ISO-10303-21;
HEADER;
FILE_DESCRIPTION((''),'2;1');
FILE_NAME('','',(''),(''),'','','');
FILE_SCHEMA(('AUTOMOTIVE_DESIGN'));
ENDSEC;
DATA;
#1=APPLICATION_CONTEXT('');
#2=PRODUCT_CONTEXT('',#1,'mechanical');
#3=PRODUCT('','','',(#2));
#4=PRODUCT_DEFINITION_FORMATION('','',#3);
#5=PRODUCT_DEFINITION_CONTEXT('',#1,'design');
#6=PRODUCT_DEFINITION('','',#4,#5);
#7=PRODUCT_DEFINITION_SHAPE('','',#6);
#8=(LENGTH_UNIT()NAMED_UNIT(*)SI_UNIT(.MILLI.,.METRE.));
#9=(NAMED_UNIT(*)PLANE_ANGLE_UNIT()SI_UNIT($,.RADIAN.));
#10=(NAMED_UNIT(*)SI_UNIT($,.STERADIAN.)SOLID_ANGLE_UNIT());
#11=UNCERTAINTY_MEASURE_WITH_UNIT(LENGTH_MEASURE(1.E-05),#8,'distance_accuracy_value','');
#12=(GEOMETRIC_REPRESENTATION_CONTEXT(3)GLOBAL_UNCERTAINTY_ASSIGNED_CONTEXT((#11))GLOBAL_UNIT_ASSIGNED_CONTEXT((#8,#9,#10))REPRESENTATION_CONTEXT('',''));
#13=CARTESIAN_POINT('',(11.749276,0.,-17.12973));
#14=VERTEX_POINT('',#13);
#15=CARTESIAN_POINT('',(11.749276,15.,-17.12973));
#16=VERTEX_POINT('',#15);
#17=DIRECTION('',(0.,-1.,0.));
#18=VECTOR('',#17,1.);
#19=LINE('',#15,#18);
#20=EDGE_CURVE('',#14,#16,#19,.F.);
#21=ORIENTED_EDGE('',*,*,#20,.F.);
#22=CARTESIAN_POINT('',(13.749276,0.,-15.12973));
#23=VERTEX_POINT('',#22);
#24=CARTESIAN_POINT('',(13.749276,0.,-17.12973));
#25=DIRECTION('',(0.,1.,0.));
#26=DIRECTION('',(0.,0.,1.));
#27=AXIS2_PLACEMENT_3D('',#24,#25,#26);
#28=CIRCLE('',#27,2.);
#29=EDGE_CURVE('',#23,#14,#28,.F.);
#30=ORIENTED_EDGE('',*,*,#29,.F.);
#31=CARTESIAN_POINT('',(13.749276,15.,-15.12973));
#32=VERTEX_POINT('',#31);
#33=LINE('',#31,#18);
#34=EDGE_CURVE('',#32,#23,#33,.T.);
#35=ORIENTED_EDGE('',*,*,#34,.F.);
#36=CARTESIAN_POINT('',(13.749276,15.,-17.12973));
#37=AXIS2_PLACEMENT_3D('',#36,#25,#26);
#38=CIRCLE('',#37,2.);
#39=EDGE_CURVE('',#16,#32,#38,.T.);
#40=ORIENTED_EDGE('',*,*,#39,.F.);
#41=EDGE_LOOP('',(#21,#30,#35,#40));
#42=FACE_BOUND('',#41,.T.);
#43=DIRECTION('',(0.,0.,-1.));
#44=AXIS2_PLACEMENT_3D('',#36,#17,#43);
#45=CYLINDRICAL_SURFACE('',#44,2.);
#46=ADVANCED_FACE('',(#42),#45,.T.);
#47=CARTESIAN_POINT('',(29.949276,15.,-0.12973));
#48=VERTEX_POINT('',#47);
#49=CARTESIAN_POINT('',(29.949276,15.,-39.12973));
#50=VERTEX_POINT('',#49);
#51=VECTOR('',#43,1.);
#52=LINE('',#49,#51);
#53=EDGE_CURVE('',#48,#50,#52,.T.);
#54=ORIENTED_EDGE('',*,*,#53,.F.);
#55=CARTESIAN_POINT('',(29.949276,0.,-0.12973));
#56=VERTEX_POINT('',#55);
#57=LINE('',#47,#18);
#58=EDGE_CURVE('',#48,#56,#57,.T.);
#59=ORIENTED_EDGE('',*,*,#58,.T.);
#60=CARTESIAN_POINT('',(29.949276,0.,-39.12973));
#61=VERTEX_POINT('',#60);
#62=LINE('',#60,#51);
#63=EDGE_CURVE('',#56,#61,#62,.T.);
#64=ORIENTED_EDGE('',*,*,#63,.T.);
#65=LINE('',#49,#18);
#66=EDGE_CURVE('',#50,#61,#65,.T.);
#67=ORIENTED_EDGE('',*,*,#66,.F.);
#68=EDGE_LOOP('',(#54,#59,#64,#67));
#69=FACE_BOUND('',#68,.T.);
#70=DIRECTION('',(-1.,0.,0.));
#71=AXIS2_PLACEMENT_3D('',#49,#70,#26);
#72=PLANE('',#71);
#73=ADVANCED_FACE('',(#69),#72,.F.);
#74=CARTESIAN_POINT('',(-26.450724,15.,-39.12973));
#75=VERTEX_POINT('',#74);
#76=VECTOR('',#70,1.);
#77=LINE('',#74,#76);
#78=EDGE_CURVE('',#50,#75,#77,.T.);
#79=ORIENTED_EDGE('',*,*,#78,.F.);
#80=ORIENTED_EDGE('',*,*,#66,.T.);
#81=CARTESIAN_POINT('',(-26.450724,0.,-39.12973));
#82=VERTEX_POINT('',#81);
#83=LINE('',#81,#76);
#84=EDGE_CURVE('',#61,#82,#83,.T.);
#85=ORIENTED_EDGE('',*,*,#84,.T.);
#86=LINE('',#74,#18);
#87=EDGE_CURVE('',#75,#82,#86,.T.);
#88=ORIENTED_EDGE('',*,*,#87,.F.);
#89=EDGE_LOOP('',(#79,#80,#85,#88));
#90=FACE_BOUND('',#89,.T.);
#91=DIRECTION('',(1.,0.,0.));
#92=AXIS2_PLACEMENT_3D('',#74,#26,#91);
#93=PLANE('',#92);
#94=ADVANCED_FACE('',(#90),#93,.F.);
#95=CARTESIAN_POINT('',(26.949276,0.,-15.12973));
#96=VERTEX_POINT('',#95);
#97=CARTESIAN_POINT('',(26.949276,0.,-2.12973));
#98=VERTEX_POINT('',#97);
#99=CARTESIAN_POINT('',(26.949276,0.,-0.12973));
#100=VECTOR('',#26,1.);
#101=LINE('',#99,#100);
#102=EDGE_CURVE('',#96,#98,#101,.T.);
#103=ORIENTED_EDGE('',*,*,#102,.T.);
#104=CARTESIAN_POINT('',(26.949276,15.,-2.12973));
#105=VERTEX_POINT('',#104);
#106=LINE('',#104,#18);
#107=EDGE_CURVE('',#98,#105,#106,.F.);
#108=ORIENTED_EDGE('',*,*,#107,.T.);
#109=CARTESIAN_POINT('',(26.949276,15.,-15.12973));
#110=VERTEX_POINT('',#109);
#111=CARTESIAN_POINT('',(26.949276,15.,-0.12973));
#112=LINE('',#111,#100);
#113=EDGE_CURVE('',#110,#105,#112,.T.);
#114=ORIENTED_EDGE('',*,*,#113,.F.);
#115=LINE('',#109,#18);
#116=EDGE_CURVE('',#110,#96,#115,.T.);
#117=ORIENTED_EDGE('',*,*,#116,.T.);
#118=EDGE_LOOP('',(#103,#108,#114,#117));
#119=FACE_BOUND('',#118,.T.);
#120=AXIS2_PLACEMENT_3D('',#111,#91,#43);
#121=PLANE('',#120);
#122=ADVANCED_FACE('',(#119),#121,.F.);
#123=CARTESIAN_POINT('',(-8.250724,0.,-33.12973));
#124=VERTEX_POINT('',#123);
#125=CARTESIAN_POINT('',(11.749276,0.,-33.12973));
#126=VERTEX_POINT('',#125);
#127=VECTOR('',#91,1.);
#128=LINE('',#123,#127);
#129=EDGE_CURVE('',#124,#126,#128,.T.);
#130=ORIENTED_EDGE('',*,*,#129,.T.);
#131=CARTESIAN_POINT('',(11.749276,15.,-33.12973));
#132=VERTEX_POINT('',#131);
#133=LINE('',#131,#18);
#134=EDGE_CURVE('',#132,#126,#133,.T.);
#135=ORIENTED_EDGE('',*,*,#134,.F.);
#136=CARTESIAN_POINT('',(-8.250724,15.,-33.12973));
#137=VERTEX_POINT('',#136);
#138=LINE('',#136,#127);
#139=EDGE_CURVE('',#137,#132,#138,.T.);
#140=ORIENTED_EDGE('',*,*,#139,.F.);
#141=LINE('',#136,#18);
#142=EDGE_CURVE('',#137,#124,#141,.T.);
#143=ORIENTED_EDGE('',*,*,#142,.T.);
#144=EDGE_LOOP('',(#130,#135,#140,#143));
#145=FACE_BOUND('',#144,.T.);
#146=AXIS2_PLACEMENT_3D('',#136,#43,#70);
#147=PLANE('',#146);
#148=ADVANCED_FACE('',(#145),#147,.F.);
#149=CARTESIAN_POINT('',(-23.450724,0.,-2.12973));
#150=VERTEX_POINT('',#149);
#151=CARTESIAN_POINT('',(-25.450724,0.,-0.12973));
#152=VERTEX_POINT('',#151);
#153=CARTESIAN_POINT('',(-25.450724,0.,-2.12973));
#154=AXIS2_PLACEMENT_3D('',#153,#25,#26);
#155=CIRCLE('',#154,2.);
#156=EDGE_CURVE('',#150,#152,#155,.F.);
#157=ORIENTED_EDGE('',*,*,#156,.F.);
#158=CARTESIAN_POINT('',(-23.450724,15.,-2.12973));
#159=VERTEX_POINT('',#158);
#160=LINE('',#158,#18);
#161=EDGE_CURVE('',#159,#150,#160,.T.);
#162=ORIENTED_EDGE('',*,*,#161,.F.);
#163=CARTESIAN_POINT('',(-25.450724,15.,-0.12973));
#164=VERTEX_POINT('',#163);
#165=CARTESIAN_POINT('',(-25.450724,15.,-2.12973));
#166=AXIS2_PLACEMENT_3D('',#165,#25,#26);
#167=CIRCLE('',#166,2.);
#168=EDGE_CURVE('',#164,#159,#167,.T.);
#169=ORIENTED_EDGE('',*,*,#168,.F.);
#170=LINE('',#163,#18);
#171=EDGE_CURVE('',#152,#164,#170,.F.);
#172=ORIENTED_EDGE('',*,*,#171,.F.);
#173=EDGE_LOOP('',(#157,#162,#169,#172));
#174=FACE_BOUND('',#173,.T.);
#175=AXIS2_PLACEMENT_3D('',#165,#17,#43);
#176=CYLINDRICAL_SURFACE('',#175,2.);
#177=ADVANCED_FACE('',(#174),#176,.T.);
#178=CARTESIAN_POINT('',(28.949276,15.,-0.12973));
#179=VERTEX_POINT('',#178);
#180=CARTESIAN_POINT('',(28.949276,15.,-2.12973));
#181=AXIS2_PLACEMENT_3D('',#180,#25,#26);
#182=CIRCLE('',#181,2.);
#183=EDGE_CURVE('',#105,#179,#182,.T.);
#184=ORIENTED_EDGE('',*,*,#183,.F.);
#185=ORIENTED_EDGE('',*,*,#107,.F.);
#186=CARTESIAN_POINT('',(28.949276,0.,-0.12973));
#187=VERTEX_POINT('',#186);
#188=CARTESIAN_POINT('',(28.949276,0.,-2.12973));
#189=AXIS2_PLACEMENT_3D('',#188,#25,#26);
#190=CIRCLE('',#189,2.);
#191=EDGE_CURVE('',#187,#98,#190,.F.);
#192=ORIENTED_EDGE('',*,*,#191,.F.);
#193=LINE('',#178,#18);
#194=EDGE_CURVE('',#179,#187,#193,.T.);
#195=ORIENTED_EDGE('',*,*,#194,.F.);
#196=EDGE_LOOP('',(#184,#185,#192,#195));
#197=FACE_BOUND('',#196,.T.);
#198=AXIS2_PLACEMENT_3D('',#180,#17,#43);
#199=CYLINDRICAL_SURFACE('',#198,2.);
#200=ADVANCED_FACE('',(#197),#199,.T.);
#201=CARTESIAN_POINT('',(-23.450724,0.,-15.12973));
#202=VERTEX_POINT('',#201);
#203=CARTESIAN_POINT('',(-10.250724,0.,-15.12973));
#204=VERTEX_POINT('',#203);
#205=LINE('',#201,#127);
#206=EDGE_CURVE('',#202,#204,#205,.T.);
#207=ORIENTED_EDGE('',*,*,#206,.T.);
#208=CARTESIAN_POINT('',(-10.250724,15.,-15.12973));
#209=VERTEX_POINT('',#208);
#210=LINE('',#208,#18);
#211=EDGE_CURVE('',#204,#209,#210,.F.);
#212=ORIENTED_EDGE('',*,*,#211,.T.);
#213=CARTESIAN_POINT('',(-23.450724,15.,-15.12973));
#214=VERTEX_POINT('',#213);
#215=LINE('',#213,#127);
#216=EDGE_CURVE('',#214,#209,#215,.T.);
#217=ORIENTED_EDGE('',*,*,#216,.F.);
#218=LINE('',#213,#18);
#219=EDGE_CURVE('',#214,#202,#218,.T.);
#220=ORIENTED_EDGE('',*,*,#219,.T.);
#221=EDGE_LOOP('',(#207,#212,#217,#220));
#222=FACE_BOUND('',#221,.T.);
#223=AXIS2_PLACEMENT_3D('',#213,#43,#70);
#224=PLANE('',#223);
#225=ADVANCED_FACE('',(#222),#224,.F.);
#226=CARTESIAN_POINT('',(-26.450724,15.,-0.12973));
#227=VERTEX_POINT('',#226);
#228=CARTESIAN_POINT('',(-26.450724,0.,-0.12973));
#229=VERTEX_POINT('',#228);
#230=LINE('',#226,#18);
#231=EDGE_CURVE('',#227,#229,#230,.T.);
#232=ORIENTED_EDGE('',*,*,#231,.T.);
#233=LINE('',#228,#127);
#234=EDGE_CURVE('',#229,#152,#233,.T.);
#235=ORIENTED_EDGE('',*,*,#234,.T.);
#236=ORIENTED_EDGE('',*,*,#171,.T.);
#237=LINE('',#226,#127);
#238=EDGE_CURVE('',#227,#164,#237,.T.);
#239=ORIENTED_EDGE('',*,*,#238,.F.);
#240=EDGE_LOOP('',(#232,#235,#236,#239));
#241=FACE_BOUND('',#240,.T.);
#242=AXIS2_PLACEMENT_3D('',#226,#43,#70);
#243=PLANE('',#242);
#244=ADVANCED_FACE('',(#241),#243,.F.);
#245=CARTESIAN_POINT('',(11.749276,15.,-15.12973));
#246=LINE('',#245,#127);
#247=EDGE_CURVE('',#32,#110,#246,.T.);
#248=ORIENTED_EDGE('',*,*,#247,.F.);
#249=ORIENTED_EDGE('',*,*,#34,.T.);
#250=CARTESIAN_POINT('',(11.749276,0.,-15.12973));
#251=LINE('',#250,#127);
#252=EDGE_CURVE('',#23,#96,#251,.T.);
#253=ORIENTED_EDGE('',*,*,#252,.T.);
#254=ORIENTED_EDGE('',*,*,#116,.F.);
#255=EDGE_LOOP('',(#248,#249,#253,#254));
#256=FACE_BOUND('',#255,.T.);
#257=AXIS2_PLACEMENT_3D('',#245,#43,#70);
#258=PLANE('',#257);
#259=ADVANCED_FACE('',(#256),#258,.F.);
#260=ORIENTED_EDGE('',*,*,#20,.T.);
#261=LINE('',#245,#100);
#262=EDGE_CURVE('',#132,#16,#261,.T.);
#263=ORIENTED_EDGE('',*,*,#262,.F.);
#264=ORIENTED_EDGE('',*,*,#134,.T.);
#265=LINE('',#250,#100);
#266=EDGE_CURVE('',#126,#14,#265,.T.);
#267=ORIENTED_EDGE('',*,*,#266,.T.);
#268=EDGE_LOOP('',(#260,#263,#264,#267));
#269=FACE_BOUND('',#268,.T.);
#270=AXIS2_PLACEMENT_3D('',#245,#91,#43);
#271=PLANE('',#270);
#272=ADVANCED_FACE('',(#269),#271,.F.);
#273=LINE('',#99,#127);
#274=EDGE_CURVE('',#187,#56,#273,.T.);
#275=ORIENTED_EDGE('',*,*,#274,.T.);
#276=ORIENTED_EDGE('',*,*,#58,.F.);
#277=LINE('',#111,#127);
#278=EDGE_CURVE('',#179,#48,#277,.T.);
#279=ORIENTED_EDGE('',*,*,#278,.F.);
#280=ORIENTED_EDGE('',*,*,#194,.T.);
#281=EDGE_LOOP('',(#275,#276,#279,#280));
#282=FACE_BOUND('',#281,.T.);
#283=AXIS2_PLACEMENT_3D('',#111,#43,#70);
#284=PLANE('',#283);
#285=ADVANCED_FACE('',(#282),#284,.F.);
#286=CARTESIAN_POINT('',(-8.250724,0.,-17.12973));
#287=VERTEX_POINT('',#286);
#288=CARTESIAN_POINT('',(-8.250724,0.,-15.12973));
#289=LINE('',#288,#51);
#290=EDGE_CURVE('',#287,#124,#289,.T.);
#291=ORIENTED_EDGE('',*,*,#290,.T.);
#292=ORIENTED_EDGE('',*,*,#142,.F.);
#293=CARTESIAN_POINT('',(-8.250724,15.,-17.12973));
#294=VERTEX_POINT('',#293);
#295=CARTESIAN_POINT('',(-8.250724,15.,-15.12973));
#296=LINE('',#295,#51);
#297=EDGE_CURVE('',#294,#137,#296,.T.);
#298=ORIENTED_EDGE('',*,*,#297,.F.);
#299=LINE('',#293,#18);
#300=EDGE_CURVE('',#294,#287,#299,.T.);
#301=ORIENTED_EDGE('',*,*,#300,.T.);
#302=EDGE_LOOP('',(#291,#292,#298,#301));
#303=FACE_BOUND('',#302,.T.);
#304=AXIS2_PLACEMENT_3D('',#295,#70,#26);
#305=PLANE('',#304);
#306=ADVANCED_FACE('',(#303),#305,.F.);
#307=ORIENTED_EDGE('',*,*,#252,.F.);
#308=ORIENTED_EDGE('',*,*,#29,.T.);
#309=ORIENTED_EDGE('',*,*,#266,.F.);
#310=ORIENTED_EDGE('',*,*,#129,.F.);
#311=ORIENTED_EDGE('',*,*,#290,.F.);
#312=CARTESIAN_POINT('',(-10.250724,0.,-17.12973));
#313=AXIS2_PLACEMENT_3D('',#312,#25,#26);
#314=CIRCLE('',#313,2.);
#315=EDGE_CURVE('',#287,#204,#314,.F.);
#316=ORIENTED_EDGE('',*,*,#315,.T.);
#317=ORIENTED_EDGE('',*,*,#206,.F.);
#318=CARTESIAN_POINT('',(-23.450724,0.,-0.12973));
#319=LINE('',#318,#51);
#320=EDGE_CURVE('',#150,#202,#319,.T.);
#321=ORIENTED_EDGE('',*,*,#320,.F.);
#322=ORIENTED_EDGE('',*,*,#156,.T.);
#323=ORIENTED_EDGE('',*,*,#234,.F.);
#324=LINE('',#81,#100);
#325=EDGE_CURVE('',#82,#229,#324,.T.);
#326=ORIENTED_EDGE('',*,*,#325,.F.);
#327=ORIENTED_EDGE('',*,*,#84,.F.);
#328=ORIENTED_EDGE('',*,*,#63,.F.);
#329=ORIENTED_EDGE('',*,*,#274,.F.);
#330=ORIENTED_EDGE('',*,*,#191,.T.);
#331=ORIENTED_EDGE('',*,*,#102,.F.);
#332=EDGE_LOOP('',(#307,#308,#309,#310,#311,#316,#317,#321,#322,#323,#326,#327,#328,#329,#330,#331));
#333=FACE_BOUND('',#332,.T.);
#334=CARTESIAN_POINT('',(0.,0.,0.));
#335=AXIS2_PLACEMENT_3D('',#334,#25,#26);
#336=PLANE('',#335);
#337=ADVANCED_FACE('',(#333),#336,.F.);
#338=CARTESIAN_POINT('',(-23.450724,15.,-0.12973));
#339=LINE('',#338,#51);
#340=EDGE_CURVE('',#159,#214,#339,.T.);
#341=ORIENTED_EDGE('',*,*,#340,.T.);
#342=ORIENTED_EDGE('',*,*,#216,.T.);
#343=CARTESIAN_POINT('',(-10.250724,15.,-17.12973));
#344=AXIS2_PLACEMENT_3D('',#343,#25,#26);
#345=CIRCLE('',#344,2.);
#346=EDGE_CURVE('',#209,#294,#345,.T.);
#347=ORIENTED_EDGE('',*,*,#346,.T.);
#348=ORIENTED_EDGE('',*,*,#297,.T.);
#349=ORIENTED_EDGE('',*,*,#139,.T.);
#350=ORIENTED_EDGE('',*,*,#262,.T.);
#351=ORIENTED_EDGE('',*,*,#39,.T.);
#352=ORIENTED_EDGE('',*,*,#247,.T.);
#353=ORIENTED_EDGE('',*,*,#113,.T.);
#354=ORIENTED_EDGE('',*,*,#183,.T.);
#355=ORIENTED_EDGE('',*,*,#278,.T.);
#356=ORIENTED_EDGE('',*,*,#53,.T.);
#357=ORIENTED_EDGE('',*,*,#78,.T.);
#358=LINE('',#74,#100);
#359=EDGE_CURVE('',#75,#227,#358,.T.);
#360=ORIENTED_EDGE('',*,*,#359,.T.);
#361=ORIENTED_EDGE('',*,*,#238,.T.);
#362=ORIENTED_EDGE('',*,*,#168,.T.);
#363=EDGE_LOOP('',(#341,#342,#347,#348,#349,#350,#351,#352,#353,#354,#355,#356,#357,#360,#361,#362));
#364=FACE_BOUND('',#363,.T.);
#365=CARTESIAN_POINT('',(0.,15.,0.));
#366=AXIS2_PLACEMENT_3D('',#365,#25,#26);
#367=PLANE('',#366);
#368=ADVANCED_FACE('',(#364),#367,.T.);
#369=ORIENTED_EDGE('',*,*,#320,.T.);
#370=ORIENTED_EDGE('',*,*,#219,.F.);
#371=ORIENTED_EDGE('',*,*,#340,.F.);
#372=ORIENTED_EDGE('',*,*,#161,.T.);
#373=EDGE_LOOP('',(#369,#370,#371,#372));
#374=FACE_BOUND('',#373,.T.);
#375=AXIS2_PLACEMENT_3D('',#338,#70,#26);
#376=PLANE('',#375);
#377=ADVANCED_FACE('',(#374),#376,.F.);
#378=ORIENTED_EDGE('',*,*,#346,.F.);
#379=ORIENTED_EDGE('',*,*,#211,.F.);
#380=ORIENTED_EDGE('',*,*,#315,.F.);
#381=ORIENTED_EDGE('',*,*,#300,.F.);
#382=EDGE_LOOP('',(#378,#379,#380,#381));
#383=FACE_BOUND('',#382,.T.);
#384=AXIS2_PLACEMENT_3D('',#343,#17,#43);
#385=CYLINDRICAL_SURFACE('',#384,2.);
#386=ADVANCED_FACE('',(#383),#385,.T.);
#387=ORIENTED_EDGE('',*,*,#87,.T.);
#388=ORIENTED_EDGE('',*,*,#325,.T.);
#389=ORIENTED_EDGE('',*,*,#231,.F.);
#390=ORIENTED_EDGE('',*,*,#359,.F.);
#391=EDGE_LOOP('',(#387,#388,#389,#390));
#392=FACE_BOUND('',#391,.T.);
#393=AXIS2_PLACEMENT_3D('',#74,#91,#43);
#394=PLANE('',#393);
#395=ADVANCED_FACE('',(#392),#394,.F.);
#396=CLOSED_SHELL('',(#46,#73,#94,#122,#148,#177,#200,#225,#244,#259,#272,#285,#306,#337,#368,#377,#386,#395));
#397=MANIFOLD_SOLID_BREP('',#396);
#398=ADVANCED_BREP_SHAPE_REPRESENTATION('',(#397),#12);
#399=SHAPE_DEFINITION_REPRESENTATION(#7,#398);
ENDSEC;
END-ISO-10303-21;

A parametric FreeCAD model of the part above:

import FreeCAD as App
import Part
import Sketcher
Q = App.Units.Quantity


def edges_at(feature, points):
    """Names of the edges that pass closest to the given points."""
    edges = feature.Shape.Edges
    near = lambda p: min(range(len(edges)), key=lambda i: edges[i].distToShape(Part.Vertex(*p))[0])
    return sorted({f"Edge{near(p) + 1}" for p in points})

doc = App.newDocument("Part")
body = doc.addObject("PartDesign::Body", "Body")

# Sketch on XZ plane
sketch1 = body.newObject("Sketcher::SketchObject", "Sketch")
sketch1.AttachmentSupport = (doc.getObject("XZ_Plane"), [""])
sketch1.MapMode = "FlatFace"
sketch1.addGeometry([
    Part.LineSegment(App.Vector(26.9, -0.1, 0), App.Vector(29.9, -0.1, 0)),  # 0
    Part.LineSegment(App.Vector(29.9, -0.1, 0), App.Vector(29.9, -39.1, 0)),  # 1
    Part.LineSegment(App.Vector(29.9, -39.1, 0), App.Vector(-26.5, -39.1, 0)),  # 2
    Part.LineSegment(App.Vector(-26.5, -39.1, 0), App.Vector(-26.5, -0.1, 0)),  # 3
    Part.LineSegment(App.Vector(-26.5, -0.1, 0), App.Vector(-23.5, -0.1, 0)),  # 4
    Part.LineSegment(App.Vector(-23.5, -0.1, 0), App.Vector(-23.5, -15.1, 0)),  # 5
    Part.LineSegment(App.Vector(-23.5, -15.1, 0), App.Vector(-8.3, -15.1, 0)),  # 6
    Part.LineSegment(App.Vector(-8.3, -15.1, 0), App.Vector(-8.3, -33.1, 0)),  # 7
    Part.LineSegment(App.Vector(-8.3, -33.1, 0), App.Vector(11.7, -33.1, 0)),  # 8
    Part.LineSegment(App.Vector(11.7, -33.1, 0), App.Vector(11.7, -15.1, 0)),  # 9
    Part.LineSegment(App.Vector(11.7, -15.1, 0), App.Vector(26.9, -15.1, 0)),  # 10
    Part.LineSegment(App.Vector(26.9, -15.1, 0), App.Vector(26.9, -0.1, 0)),  # 11
], False)
sketch1.addConstraint([
    Sketcher.Constraint("Coincident", 0, 2, 1, 1),
    Sketcher.Constraint("Coincident", 1, 2, 2, 1),
    Sketcher.Constraint("Coincident", 2, 2, 3, 1),
    Sketcher.Constraint("Coincident", 3, 2, 4, 1),
    Sketcher.Constraint("Coincident", 4, 2, 5, 1),
    Sketcher.Constraint("Coincident", 5, 2, 6, 1),
    Sketcher.Constraint("Coincident", 6, 2, 7, 1),
    Sketcher.Constraint("Coincident", 7, 2, 8, 1),
    Sketcher.Constraint("Coincident", 8, 2, 9, 1),
    Sketcher.Constraint("Coincident", 9, 2, 10, 1),
    Sketcher.Constraint("Coincident", 10, 2, 11, 1),
    Sketcher.Constraint("Coincident", 11, 2, 0, 1),
    Sketcher.Constraint("Horizontal", 0),
    Sketcher.Constraint("Vertical", 1),
    Sketcher.Constraint("Horizontal", 2),
    Sketcher.Constraint("Vertical", 3),
    Sketcher.Constraint("Horizontal", 4),
    Sketcher.Constraint("Vertical", 5),
    Sketcher.Constraint("Horizontal", 6),
    Sketcher.Constraint("Vertical", 7),
    Sketcher.Constraint("Horizontal", 8),
    Sketcher.Constraint("Vertical", 9),
    Sketcher.Constraint("Horizontal", 10),
    Sketcher.Constraint("Vertical", 11),
    Sketcher.Constraint("Horizontal", 0, 2, 3, 2),
    Sketcher.Constraint("Horizontal", 6, 2, 9, 2),
    Sketcher.Constraint("Equal", 0, 4),
    Sketcher.Constraint("Equal", 6, 10),
    Sketcher.Constraint("DistanceX", 0, 1, 0, 2, Q("3 mm")),
    Sketcher.Constraint("DistanceX", 8, 1, 8, 2, Q("20 mm")),
    Sketcher.Constraint("DistanceY", 1, 2, 1, 1, Q("39 mm")),
    Sketcher.Constraint("DistanceY", 5, 2, 5, 1, Q("15 mm")),
    Sketcher.Constraint("DistanceY", 7, 2, 7, 1, Q("18 mm")),
    Sketcher.Constraint("DistanceX", 2, 2, 2, 1, Q("56.4 mm")),
    Sketcher.Constraint("DistanceY", 0, 2, -1, 1, Q("0.12973 mm")),
    Sketcher.Constraint("DistanceX", -1, 1, 0, 2, Q("29.949276 mm")),
])
pad1 = body.newObject("PartDesign::Pad", "Pad")
pad1.Profile = sketch1
pad1.Length = 15
pad1.Reversed = True
doc.recompute()

fillet = body.newObject("PartDesign::Fillet", "Fillet")
fillet.Base = (pad1, edges_at(pad1, [
    (26.949, 7.5, -0.13),
    (11.749, 7.5, -15.13),
    (-8.251, 7.5, -15.13),
    (-23.451, 7.5, -0.13),
]))
fillet.Radius = 2

doc.recompute()
